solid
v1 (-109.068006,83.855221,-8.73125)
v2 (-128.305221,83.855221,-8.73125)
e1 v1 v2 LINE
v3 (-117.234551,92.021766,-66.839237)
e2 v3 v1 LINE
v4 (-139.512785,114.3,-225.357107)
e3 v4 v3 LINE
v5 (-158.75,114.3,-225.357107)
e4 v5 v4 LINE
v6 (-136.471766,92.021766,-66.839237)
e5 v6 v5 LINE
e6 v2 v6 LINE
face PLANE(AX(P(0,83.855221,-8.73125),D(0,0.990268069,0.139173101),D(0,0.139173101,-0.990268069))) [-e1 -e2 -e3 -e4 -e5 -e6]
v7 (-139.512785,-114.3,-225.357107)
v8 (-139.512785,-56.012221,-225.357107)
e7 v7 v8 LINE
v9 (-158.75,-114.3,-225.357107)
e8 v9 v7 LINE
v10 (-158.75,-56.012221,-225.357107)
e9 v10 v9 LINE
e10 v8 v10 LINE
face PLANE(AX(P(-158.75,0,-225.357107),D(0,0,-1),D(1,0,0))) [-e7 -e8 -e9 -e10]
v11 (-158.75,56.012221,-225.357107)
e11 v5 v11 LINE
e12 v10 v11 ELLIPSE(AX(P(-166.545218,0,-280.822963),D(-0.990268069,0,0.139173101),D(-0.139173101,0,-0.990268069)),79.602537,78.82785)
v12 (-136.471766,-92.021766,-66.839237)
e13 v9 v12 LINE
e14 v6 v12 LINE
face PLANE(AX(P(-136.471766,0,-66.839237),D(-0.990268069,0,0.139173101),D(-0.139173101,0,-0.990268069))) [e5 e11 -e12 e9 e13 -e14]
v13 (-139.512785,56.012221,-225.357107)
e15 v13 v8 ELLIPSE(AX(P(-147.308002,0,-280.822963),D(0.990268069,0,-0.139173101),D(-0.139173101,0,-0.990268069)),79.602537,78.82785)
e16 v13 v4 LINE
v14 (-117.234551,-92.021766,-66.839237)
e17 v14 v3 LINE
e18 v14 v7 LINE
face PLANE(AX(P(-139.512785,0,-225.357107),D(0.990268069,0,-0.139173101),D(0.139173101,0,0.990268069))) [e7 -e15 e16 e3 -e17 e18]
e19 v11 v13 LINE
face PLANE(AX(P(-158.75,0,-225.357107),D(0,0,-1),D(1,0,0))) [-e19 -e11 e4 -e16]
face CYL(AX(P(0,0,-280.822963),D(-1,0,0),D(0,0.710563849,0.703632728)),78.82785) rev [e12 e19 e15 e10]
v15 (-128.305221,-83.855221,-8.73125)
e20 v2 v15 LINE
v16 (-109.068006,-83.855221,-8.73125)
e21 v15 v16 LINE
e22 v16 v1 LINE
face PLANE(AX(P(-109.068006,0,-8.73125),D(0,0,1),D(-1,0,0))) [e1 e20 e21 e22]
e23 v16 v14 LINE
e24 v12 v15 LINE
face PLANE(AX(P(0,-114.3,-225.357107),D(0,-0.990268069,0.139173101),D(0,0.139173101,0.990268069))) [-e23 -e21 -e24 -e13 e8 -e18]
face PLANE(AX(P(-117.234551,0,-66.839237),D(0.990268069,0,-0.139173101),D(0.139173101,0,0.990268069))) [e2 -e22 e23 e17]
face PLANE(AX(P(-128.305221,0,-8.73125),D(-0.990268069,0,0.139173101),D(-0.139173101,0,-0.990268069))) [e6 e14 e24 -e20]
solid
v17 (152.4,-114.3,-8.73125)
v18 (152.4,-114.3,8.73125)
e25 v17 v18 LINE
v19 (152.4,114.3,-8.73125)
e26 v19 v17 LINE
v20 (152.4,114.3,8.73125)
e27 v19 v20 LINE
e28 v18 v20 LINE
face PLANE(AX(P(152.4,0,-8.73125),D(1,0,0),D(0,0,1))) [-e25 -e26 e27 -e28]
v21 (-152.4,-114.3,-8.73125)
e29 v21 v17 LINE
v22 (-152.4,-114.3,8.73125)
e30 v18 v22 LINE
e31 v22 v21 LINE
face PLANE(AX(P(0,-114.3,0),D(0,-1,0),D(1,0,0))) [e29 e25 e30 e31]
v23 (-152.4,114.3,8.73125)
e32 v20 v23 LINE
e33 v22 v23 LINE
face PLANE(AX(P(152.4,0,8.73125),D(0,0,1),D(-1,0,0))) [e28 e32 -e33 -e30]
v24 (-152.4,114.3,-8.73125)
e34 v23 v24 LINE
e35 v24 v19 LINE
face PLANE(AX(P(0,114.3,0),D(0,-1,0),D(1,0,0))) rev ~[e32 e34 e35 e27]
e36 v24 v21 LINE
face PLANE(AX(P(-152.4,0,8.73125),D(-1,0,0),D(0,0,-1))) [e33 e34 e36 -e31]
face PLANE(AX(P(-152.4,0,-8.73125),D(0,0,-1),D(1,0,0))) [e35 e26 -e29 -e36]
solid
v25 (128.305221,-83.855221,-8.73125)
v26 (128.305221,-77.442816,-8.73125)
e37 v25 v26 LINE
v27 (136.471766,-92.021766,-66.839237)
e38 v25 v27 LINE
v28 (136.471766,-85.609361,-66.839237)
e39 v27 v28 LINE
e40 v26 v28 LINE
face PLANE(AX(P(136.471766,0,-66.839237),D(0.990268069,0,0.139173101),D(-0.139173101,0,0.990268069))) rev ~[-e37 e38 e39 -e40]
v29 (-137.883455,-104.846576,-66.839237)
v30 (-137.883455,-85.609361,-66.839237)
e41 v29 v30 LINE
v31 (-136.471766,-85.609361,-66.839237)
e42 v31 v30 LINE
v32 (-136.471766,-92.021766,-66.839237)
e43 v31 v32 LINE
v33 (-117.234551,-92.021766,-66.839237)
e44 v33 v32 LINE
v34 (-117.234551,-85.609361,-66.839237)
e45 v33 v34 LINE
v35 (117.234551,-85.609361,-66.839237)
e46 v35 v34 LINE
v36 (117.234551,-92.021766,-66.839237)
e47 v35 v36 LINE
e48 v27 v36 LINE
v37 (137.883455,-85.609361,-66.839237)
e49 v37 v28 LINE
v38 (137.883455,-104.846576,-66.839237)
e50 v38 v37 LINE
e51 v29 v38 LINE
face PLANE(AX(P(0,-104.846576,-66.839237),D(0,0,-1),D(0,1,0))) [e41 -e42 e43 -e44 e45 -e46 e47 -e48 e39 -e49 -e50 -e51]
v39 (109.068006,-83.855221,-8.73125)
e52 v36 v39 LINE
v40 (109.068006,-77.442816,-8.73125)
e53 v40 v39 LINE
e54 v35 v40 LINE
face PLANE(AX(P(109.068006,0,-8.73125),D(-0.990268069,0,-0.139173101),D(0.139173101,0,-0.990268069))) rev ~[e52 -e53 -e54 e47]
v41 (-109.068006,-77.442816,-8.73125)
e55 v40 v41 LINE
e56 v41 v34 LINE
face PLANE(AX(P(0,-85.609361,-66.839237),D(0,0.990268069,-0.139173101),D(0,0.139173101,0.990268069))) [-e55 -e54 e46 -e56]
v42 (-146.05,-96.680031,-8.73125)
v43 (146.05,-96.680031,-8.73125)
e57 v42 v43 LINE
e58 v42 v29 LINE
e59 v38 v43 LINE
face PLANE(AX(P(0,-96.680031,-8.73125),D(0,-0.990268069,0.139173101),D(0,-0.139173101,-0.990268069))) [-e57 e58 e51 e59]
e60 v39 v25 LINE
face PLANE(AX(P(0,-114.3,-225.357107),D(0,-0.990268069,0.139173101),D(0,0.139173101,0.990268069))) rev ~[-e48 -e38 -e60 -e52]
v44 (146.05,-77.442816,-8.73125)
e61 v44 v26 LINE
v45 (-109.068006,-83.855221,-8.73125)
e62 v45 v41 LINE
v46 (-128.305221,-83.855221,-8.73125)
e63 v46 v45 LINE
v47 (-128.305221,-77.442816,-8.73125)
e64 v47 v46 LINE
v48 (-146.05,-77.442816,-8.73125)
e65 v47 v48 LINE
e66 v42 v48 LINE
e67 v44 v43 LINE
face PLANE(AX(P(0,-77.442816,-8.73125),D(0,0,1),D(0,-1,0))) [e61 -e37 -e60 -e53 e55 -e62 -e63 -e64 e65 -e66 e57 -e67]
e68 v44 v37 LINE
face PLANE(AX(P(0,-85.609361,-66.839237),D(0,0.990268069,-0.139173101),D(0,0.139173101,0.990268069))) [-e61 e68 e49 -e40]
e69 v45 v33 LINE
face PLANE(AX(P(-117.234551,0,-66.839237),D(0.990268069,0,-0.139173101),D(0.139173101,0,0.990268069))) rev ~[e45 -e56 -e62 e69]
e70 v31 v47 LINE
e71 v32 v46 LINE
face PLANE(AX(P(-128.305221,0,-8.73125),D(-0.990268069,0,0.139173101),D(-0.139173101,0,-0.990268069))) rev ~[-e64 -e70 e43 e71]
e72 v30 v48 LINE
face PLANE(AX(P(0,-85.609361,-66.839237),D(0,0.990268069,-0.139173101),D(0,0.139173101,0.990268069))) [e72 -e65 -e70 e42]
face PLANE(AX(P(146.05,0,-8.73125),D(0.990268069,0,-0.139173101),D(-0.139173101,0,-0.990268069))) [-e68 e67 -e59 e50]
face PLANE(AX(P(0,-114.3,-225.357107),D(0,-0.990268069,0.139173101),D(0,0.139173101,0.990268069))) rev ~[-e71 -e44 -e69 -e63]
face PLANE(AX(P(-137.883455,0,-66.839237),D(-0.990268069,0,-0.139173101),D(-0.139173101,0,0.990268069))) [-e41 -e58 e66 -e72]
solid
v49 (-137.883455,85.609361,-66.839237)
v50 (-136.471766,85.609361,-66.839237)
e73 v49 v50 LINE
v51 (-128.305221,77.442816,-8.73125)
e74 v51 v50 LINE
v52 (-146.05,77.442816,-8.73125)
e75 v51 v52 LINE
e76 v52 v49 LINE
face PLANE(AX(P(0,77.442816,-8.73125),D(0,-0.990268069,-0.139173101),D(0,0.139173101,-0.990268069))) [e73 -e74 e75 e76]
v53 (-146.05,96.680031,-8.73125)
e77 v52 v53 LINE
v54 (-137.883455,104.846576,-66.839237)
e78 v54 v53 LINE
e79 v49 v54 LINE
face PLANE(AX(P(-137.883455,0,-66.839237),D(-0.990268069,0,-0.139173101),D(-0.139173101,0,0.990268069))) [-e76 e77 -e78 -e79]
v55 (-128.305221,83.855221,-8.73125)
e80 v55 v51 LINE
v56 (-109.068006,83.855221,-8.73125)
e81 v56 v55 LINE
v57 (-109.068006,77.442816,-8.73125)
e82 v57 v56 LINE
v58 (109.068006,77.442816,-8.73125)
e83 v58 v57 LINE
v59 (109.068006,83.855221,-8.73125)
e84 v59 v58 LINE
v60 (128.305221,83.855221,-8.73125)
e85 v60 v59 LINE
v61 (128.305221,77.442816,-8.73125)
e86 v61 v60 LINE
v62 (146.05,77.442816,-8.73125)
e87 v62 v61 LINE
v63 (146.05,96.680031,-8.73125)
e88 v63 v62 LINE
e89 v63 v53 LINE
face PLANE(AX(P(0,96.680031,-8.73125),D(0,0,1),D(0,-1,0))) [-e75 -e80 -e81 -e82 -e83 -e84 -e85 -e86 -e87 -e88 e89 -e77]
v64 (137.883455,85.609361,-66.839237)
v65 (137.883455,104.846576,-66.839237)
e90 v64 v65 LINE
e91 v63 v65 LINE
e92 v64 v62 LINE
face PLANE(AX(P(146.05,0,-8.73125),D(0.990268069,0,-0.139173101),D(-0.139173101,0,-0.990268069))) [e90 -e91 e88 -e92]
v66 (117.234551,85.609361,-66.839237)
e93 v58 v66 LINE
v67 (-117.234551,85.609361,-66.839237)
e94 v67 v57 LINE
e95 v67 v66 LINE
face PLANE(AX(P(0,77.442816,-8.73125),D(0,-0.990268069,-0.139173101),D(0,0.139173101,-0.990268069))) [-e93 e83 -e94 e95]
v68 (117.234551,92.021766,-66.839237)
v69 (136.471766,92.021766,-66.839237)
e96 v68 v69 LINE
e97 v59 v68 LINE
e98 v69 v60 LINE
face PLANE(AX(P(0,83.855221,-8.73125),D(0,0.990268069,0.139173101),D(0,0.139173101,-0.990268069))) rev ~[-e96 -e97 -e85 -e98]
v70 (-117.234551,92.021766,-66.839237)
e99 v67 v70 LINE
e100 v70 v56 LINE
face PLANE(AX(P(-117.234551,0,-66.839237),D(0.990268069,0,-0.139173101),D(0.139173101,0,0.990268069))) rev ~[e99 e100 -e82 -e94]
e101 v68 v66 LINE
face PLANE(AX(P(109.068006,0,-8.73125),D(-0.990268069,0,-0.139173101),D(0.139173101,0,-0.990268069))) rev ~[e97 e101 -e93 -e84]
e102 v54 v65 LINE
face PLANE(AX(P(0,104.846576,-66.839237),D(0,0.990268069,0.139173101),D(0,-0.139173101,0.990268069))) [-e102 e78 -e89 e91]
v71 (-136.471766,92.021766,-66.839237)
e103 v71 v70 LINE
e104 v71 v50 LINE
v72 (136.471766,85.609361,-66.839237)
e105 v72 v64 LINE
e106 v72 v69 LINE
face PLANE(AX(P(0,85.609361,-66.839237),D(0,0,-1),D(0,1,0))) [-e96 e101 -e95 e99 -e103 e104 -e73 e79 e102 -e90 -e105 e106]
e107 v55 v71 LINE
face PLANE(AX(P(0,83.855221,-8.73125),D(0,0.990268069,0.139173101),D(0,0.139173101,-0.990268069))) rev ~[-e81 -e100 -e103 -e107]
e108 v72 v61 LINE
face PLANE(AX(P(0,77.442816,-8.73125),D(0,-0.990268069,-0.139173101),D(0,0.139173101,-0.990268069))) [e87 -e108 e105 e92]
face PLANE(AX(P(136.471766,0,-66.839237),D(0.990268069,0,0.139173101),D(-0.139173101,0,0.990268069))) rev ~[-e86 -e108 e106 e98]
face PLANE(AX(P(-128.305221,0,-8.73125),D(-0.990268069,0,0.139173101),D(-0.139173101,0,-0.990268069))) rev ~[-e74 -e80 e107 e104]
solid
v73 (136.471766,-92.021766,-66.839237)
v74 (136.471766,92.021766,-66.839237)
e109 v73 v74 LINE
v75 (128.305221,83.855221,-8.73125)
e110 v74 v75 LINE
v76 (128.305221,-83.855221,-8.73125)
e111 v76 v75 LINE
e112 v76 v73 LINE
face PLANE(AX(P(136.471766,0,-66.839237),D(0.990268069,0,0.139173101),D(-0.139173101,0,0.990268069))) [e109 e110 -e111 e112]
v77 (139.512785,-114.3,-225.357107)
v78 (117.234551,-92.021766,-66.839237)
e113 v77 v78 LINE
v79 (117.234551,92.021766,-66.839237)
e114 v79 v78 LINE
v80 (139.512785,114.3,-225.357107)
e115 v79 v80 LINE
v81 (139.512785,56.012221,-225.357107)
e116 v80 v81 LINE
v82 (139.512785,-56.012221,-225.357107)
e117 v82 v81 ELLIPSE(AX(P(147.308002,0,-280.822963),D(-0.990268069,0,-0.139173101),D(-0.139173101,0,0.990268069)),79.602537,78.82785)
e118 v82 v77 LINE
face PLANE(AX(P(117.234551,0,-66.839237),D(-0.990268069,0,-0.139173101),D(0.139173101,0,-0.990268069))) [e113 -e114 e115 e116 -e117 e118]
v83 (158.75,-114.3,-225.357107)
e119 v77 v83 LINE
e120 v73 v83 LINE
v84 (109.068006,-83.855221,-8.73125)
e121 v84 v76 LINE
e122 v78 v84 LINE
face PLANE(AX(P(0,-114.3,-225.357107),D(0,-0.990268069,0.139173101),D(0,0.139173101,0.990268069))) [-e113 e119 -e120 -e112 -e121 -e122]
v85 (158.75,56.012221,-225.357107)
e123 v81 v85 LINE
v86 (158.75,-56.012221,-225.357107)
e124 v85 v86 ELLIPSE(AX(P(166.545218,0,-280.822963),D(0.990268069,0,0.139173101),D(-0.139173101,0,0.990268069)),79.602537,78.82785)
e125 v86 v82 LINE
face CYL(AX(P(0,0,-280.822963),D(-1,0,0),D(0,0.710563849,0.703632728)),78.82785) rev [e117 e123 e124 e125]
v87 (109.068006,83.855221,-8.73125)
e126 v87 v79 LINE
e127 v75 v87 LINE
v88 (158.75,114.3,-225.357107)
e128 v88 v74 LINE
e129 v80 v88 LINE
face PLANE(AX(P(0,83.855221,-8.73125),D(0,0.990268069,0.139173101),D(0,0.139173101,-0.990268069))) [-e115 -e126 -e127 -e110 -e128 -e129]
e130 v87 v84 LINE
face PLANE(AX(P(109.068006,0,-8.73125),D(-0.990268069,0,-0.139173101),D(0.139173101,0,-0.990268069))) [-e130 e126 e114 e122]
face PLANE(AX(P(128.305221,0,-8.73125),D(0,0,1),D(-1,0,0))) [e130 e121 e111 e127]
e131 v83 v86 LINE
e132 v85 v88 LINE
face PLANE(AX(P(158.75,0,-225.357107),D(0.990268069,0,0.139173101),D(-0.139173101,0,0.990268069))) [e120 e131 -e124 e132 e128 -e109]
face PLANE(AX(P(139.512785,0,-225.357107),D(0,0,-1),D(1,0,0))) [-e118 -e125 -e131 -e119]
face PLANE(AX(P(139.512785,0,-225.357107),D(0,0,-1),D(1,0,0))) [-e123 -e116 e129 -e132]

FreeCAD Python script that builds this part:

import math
import FreeCAD as App
import Part
import Sketcher

V = App.Vector
Q = App.Units.Quantity


def add_polygon(sketch, points):
    """Adds a closed chain of lines whose ends are joined by coincident constraints."""
    first, n = sketch.GeometryCount, len(points)
    for a, b in zip(points, points[1:] + points[:1]):
        sketch.addGeometry(Part.LineSegment(App.Vector(*a, 0), App.Vector(*b, 0)), False)
    for i in range(n):
        sketch.addConstraint(Sketcher.Constraint("Coincident", first + i, 2, first + (i + 1) % n, 1))

doc = App.newDocument("Part")
body = doc.addObject("PartDesign::Body", "Body")

sketch1 = body.newObject("Sketcher::SketchObject", "Sketch")
sketch1.AttachmentSupport = (doc.getObject("XZ_Plane"), [""])
sketch1.MapMode = "FlatFace"
add_polygon(sketch1, [(-152.4, 8.73125), (-152.4, -8.73125), (152.4, -8.73125), (152.4, 8.73125)])
sketch1.addConstraint([
    Sketcher.Constraint("Vertical", 0),
    Sketcher.Constraint("Horizontal", 1),
    Sketcher.Constraint("Vertical", 2),
    Sketcher.Constraint("Horizontal", 3),
    Sketcher.Constraint("Symmetric", 0, 2, 2, 2, -1, 1),
    Sketcher.Constraint("DistanceX", 1, 1, 1, 2, Q("12 in")),
    Sketcher.Constraint("DistanceY", 0, 2, 0, 1, Q("0.6875 in")),
])
pad1 = body.newObject("PartDesign::Pad", "Pad")
pad1.Profile = sketch1
pad1.Length = Q("9 in")
pad1.Midplane = True
body2 = doc.addObject("PartDesign::Body", "Body001")

sketch2 = body2.newObject("Sketcher::SketchObject", "Sketch001")
sketch2.AttachmentSupport = (doc.getObject("XZ_Plane001"), [""])
sketch2.MapMode = "FlatFace"
add_polygon(sketch2, [(-109.068006, -8.73125), (-128.305221, -8.73125), (-136.471766, -66.839237), (-158.75, -225.357107), (-139.512785, -225.357107), (-117.234551, -66.839237)])
sketch2.addConstraint([
    Sketcher.Constraint("Horizontal", 0),
    Sketcher.Constraint("Horizontal", 3),
    Sketcher.Constraint("Parallel", 1, 2),
    Sketcher.Constraint("Parallel", 2, 4),
    Sketcher.Constraint("Parallel", 4, 5),
    Sketcher.Constraint("Horizontal", 1, 2, 4, 2),
    Sketcher.Constraint("Angle", 1, Q("-98 deg")),
    Sketcher.Constraint("DistanceX", 2, 2, -1, 1, Q("6.25 in")),
    Sketcher.Constraint("DistanceY", 0, 2, -1, 1, Q("0.34375 in")),
    Sketcher.Constraint("DistanceX", 0, 2, 0, 1, Q("19.237215 mm")),
    Sketcher.Constraint("DistanceX", 0, 2, -1, 1, Q("128.305221 mm")),
    Sketcher.Constraint("DistanceX", 4, 2, -1, 1, Q("117.234551 mm")),
])
pad2 = body2.newObject("PartDesign::Pad", "Pad001")
pad2.Profile = sketch2
pad2.Type = "TwoLengths"
pad2.Length = Q("4.5 in")
pad2.Length2 = Q("4.5 in")
body3 = doc.addObject("PartDesign::Body", "Body002")

sketch3 = body3.newObject("Sketcher::SketchObject", "Sketch002")
sketch3.AttachmentSupport = (doc.getObject("XZ_Plane002"), [""])
sketch3.MapMode = "FlatFace"
add_polygon(sketch3, [(128.305221, -8.73125), (109.068006, -8.73125), (117.234551, -66.839237), (139.512785, -225.357107), (158.75, -225.357107), (136.471766, -66.839237)])
sketch3.addConstraint([
    Sketcher.Constraint("Horizontal", 0),
    Sketcher.Constraint("Horizontal", 3),
    Sketcher.Constraint("Parallel", 1, 2),
    Sketcher.Constraint("Parallel", 2, 4),
    Sketcher.Constraint("Parallel", 4, 5),
    Sketcher.Constraint("Horizontal", 1, 2, 4, 2),
    Sketcher.Constraint("Angle", 1, Q("-82 deg")),
    Sketcher.Constraint("DistanceX", -1, 1, 3, 2, Q("6.25 in")),
    Sketcher.Constraint("DistanceY", 0, 2, -1, 1, Q("0.34375 in")),
    Sketcher.Constraint("DistanceX", 0, 2, 0, 1, Q("19.237215 mm")),
    Sketcher.Constraint("DistanceX", -1, 1, 1, 2, Q("117.234551 mm")),
    Sketcher.Constraint("DistanceX", -1, 1, 5, 2, Q("128.305221 mm")),
])
pad3 = body3.newObject("PartDesign::Pad", "Pad002")
pad3.Profile = sketch3
pad3.Type = "TwoLengths"
pad3.Length = Q("4.5 in")
pad3.Length2 = Q("4.5 in")
body4 = doc.addObject("PartDesign::Body", "Body003")
body4.AllowCompound = True

sketch4 = body4.newObject("Sketcher::SketchObject", "Sketch003")
sketch4.AttachmentSupport = (doc.getObject("YZ_Plane003"), [""])
sketch4.MapMode = "FlatFace"
add_polygon(sketch4, [(-114.3, -225.357107), (-83.855221, -8.73125), (-114.3, -8.73125)])
sketch4.addGeometry(Part.LineSegment(V(-56.012221, -225.357107, 0), V(56.012221, -225.357107, 0)), False)
sketch4.addGeometry(Part.ArcOfCircle(Part.Circle(V(0, -280.822963, 0), V(0, 0, 1), 78.82785), math.radians(44.71919), math.radians(135.28081)), False)
add_polygon(sketch4, [(114.3, -225.357107), (114.3, -8.73125), (83.855221, -8.73125)])
sketch4.addConstraint([
    Sketcher.Constraint("Coincident", 3, 1, 4, 2),
    Sketcher.Constraint("Coincident", 4, 1, 3, 2),
    Sketcher.Constraint("Horizontal", 1),
    Sketcher.Constraint("Vertical", 2),
    Sketcher.Constraint("Horizontal", 3),
    Sketcher.Constraint("Vertical", 5),
    Sketcher.Constraint("Horizontal", 6),
    Sketcher.Constraint("Symmetric", 1, 2, 5, 2, -2),
    Sketcher.Constraint("PointOnObject", 4, 3, -2),
    Sketcher.Constraint("Horizontal", 2, 2, 3, 1),
    Sketcher.Constraint("Horizontal", 4, 1, 7, 2),
    Sketcher.Constraint("Equal", 1, 6),
    Sketcher.Constraint("Angle", 0, Q("82 deg")),
    Sketcher.Constraint("DistanceX", 1, 2, 5, 2, Q("9 in")),
    Sketcher.Constraint("DistanceY", 0, 2, -1, 1, Q("0.34375 in")),
    Sketcher.Constraint("Radius", 4, Q("78.82785 mm")),
    Sketcher.Constraint("DistanceX", 1, 2, 1, 1, Q("30.444779 mm")),
    Sketcher.Constraint("DistanceX", 3, 1, 3, 2, Q("112.024442 mm")),
])
pad4 = body4.newObject("PartDesign::Pad", "Pad003")
pad4.Profile = sketch4
pad4.Type = "TwoLengths"
pad4.Length = 158.751
pad4.Length2 = 158.751
pad4.Reversed = True
doc.recompute()

body5 = doc.addObject("PartDesign::Body", "Body004")
body5.BaseFeature = body4
boolean = body2.newObject("PartDesign::Boolean", "Boolean")
boolean.Type = "Cut"
boolean.addObjects([body5])
doc.recompute()

boolean2 = body3.newObject("PartDesign::Boolean", "Boolean001")
boolean2.Type = "Cut"
boolean2.addObjects([body4])
body6 = doc.addObject("PartDesign::Body", "Body005")

sketch5 = body6.newObject("Sketcher::SketchObject", "Sketch004")
sketch5.AttachmentSupport = (doc.getObject("YZ_Plane005"), [""])
sketch5.MapMode = "FlatFace"
add_polygon(sketch5, [(-77.442816, -8.73125), (-96.680031, -8.73125), (-104.846576, -66.839237), (-85.609361, -66.839237)])
sketch5.addConstraint([
    Sketcher.Constraint("Horizontal", 0),
    Sketcher.Constraint("Horizontal", 2),
    Sketcher.Constraint("Parallel", 1, 3),
    Sketcher.Constraint("Angle", 1, Q("-98 deg")),
    Sketcher.Constraint("DistanceY", 0, 2, -1, 1, Q("0.34375 in")),
    Sketcher.Constraint("DistanceX", 0, 2, 0, 1, Q("19.237215 mm")),
    Sketcher.Constraint("DistanceX", 0, 2, -1, 1, Q("96.680031 mm")),
    Sketcher.Constraint("DistanceX", 2, 2, -1, 1, Q("85.609361 mm")),
])
pad5 = body6.newObject("PartDesign::Pad", "Pad004")
pad5.Profile = sketch5
pad5.Type = "TwoLengths"
pad5.Length = Q("6 in")
pad5.Length2 = Q("6 in")
body7 = doc.addObject("PartDesign::Body", "Body006")

sketch6 = body7.newObject("Sketcher::SketchObject", "Sketch005")
sketch6.AttachmentSupport = (doc.getObject("YZ_Plane006"), [""])
sketch6.MapMode = "FlatFace"
add_polygon(sketch6, [(77.442816, -8.73125), (85.609361, -66.839237), (104.846576, -66.839237), (96.680031, -8.73125)])
sketch6.addConstraint([
    Sketcher.Constraint("Horizontal", 1),
    Sketcher.Constraint("Horizontal", 3),
    Sketcher.Constraint("Parallel", 0, 2),
    Sketcher.Constraint("Angle", 0, Q("-82 deg")),
    Sketcher.Constraint("DistanceY", 2, 2, -1, 1, Q("0.34375 in")),
    Sketcher.Constraint("DistanceX", 1, 1, 1, 2, Q("19.237215 mm")),
    Sketcher.Constraint("DistanceX", -1, 1, 0, 2, Q("85.609361 mm")),
    Sketcher.Constraint("DistanceX", -1, 1, 2, 2, Q("96.680031 mm")),
])
pad6 = body7.newObject("PartDesign::Pad", "Pad005")
pad6.Profile = sketch6
pad6.Type = "TwoLengths"
pad6.Length = Q("6 in")
pad6.Length2 = Q("6 in")
body8 = doc.addObject("PartDesign::Body", "Body007")
body8.AllowCompound = True

sketch7 = body8.newObject("Sketcher::SketchObject", "Sketch006")
sketch7.AttachmentSupport = (doc.getObject("XZ_Plane007"), [""])
sketch7.MapMode = "FlatFace"
add_polygon(sketch7, [(-146.05, -8.73125), (-152.4, -8.73125), (-152.4, -66.839237), (-137.883455, -66.839237)])
add_polygon(sketch7, [(152.4, -66.839237), (152.4, -8.73125), (146.05, -8.73125), (137.883455, -66.839237)])
sketch7.addConstraint([
    Sketcher.Constraint("Horizontal", 0),
    Sketcher.Constraint("Vertical", 1),
    Sketcher.Constraint("Horizontal", 2),
    Sketcher.Constraint("Vertical", 4),
    Sketcher.Constraint("Horizontal", 5),
    Sketcher.Constraint("Horizontal", 7),
    Sketcher.Constraint("Symmetric", 0, 2, 4, 2, -2),
    Sketcher.Constraint("Symmetric", 2, 2, 6, 2, -2),
    Sketcher.Constraint("Equal", 0, 5),
    Sketcher.Constraint("DistanceX", 0, 2, -1, 1, Q("6 in")),
    Sketcher.Constraint("Angle", 3, Q("98 deg")),
    Sketcher.Constraint("DistanceX", 0, 2, 0, 1, Q("0.25 in")),
    Sketcher.Constraint("DistanceY", 0, 2, -1, 1, Q("0.34375 in")),
    Sketcher.Constraint("DistanceX", 2, 1, 2, 2, Q("14.516545 mm")),
])
pad7 = body8.newObject("PartDesign::Pad", "Pad006")
pad7.Profile = sketch7
pad7.Type = "TwoLengths"
pad7.Length = 114.301
pad7.Length2 = 114.301
pad7.Reversed = True
doc.recompute()

body9 = doc.addObject("PartDesign::Body", "Body008")
body9.BaseFeature = body8
boolean3 = body6.newObject("PartDesign::Boolean", "Boolean002")
boolean3.Type = "Cut"
boolean3.addObjects([body9])
doc.recompute()

body10 = doc.addObject("PartDesign::Body", "Body009")
body10.BaseFeature = body2
boolean4 = body6.newObject("PartDesign::Boolean", "Boolean003")
boolean4.Type = "Cut"
boolean4.addObjects([body10])
doc.recompute()

body11 = doc.addObject("PartDesign::Body", "Body010")
body11.BaseFeature = body3
boolean5 = body6.newObject("PartDesign::Boolean", "Boolean004")
boolean5.Type = "Cut"
boolean5.addObjects([body11])
doc.recompute()

boolean6 = body7.newObject("PartDesign::Boolean", "Boolean005")
boolean6.Type = "Cut"
boolean6.addObjects([body8])
doc.recompute()

body12 = doc.addObject("PartDesign::Body", "Body011")
body12.BaseFeature = body2
boolean7 = body7.newObject("PartDesign::Boolean", "Boolean006")
boolean7.Type = "Cut"
boolean7.addObjects([body12])
doc.recompute()

body13 = doc.addObject("PartDesign::Body", "Body012")
body13.BaseFeature = body3
boolean8 = body7.newObject("PartDesign::Boolean", "Boolean007")
boolean8.Type = "Cut"
boolean8.addObjects([body13])
doc.recompute()

doc.recompute()
